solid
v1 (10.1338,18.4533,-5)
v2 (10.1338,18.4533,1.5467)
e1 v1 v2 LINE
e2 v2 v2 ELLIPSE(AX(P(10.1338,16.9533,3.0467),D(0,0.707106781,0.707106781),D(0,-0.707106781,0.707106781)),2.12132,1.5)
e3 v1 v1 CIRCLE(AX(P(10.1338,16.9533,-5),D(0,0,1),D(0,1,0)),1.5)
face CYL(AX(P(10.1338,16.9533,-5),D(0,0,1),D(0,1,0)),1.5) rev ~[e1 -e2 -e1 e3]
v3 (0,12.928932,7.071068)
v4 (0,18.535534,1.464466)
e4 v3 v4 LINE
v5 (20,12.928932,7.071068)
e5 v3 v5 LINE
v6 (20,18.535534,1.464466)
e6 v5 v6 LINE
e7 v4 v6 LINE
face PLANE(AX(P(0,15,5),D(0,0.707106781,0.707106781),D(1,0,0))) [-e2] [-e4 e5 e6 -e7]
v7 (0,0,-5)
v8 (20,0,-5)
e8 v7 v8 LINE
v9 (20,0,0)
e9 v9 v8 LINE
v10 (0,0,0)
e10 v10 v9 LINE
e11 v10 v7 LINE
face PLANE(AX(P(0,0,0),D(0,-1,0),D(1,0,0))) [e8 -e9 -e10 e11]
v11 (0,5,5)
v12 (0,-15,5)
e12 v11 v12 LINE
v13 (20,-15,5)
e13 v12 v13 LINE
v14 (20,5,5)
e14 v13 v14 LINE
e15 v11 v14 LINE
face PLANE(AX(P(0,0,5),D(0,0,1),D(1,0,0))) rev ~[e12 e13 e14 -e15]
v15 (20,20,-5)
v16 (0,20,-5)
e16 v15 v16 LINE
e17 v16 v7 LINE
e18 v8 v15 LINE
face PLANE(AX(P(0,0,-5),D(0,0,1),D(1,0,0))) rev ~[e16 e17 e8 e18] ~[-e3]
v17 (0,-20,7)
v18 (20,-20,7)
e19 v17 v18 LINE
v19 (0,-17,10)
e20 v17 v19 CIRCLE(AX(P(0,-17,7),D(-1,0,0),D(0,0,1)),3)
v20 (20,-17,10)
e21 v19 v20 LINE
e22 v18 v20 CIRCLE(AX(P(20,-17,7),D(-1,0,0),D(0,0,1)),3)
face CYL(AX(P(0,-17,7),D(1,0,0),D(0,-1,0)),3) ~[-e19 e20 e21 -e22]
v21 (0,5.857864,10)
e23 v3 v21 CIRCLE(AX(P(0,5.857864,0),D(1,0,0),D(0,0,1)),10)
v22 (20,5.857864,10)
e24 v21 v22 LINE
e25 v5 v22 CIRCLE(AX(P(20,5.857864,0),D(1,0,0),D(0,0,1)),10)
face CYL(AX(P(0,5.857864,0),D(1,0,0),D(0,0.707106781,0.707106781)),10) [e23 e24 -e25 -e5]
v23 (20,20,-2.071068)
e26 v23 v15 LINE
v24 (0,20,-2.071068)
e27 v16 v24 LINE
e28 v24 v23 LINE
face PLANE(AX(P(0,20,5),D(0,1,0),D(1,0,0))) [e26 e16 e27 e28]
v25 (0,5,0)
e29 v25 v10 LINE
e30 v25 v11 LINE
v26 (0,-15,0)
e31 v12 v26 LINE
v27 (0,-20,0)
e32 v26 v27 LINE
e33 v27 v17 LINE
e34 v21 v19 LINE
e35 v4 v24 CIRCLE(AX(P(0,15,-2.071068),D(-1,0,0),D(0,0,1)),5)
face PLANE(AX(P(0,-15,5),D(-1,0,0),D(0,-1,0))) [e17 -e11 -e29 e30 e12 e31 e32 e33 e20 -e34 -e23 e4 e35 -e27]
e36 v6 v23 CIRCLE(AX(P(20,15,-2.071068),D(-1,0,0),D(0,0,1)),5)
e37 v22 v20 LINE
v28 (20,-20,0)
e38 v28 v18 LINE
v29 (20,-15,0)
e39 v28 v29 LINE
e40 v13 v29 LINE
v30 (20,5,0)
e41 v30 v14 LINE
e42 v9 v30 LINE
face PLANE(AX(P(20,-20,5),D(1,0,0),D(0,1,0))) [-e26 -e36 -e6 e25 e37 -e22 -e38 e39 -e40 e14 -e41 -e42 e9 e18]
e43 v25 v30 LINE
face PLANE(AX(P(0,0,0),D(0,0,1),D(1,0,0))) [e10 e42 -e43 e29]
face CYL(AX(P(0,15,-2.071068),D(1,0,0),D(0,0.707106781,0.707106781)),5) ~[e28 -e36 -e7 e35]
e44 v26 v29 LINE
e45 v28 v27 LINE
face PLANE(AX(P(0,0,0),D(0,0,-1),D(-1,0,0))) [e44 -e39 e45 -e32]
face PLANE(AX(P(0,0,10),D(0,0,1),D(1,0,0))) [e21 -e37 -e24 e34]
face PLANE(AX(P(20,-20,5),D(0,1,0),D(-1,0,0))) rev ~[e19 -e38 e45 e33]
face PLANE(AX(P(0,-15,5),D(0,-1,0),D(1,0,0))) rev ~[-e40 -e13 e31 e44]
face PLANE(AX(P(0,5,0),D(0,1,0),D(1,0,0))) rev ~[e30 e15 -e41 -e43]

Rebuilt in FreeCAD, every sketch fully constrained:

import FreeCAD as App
import Part
import Sketcher
Q = App.Units.Quantity


def edges_at(feature, points):
    """Names of the edges that pass closest to the given points."""
    edges = feature.Shape.Edges
    near = lambda p: min(range(len(edges)), key=lambda i: edges[i].distToShape(Part.Vertex(*p))[0])
    return sorted({f"Edge{near(p) + 1}" for p in points})

doc = App.newDocument("Part")
body = doc.addObject("PartDesign::Body", "Body")

sketch1 = body.newObject("Sketcher::SketchObject", "Sketch")
sketch1.AttachmentSupport = (doc.getObject("XY_Plane"), [""])
sketch1.MapMode = "FlatFace"
sketch1.addGeometry([
    Part.LineSegment(App.Vector(0, 20, 0), App.Vector(0, 0, 0)),
    Part.LineSegment(App.Vector(0, 0, 0), App.Vector(20, 0, 0)),
    Part.LineSegment(App.Vector(20, 0, 0), App.Vector(20, 20, 0)),
    Part.LineSegment(App.Vector(20, 20, 0), App.Vector(0, 20, 0)),
], False)
sketch1.addConstraint([
    Sketcher.Constraint("Coincident", 0, 2, 1, 1),
    Sketcher.Constraint("Coincident", 1, 2, 2, 1),
    Sketcher.Constraint("Coincident", 2, 2, 3, 1),
    Sketcher.Constraint("Coincident", 3, 2, 0, 1),
    Sketcher.Constraint("Vertical", 0),
    Sketcher.Constraint("Horizontal", 1),
    Sketcher.Constraint("Vertical", 2),
    Sketcher.Constraint("Horizontal", 3),
    Sketcher.Constraint("Coincident", 0, 2, -1, 1),
    Sketcher.Constraint("Equal", 3, 0),
    Sketcher.Constraint("DistanceX", 1, 1, 1, 2, Q("20 mm")),
])
pad1 = body.newObject("PartDesign::Pad", "Pad")
pad1.Profile = sketch1
pad1.Length = 5
pad1.Reversed = True

sketch2 = body.newObject("Sketcher::SketchObject", "Sketch001")
sketch2.AttachmentSupport = (doc.getObject("XY_Plane"), [""])
sketch2.MapMode = "FlatFace"
sketch2.addGeometry([
    Part.LineSegment(App.Vector(0, 20, 0), App.Vector(0, 5, 0)),
    Part.LineSegment(App.Vector(0, 5, 0), App.Vector(20, 5, 0)),
    Part.LineSegment(App.Vector(20, 5, 0), App.Vector(20, 20, 0)),
    Part.LineSegment(App.Vector(20, 20, 0), App.Vector(0, 20, 0)),
], False)
sketch2.addConstraint([
    Sketcher.Constraint("Coincident", 0, 2, 1, 1),
    Sketcher.Constraint("Coincident", 1, 2, 2, 1),
    Sketcher.Constraint("Coincident", 2, 2, 3, 1),
    Sketcher.Constraint("Coincident", 3, 2, 0, 1),
    Sketcher.Constraint("Vertical", 0),
    Sketcher.Constraint("Horizontal", 1),
    Sketcher.Constraint("Vertical", 2),
    Sketcher.Constraint("Horizontal", 3),
    Sketcher.Constraint("PointOnObject", 0, 2, -2),
    Sketcher.Constraint("DistanceY", 0, 2, 0, 1, Q("15 mm")),
    Sketcher.Constraint("DistanceX", 1, 1, 1, 2, Q("20 mm")),
    Sketcher.Constraint("DistanceY", -1, 1, 0, 2, Q("5 mm")),
])
pad2 = body.newObject("PartDesign::Pad", "Pad001")
pad2.Profile = sketch2
pad2.Length = 5

sketch3 = body.newObject("Sketcher::SketchObject", "Sketch002")
sketch3.AttachmentSupport = (doc.getObject("XY_Plane"), [""])
sketch3.MapMode = "FlatFace"
sketch3.AttachmentOffset = App.Placement(App.Vector(0, 0, 5), App.Rotation())
sketch3.addGeometry([
    Part.LineSegment(App.Vector(20, 20, 0), App.Vector(0, 20, 0)),
    Part.LineSegment(App.Vector(0, 20, 0), App.Vector(0, -25, 0)),
    Part.LineSegment(App.Vector(0, -25, 0), App.Vector(20, -25, 0)),
    Part.LineSegment(App.Vector(20, -25, 0), App.Vector(20, 20, 0)),
], False)
sketch3.addConstraint([
    Sketcher.Constraint("Coincident", 0, 2, 1, 1),
    Sketcher.Constraint("Coincident", 1, 2, 2, 1),
    Sketcher.Constraint("Coincident", 2, 2, 3, 1),
    Sketcher.Constraint("Coincident", 3, 2, 0, 1),
    Sketcher.Constraint("Horizontal", 0),
    Sketcher.Constraint("Vertical", 1),
    Sketcher.Constraint("Horizontal", 2),
    Sketcher.Constraint("Vertical", 3),
    Sketcher.Constraint("PointOnObject", 0, 2, -2),
    Sketcher.Constraint("DistanceY", 1, 2, 1, 1, Q("45 mm")),
    Sketcher.Constraint("DistanceX", 0, 2, 0, 1, Q("20 mm")),
    Sketcher.Constraint("DistanceY", -1, 1, 0, 2, Q("20 mm")),
])
pad3 = body.newObject("PartDesign::Pad", "Pad002")
pad3.Profile = sketch3
pad3.Length = 5

sketch4 = body.newObject("Sketcher::SketchObject", "Sketch003")
sketch4.AttachmentSupport = (doc.getObject("XY_Plane"), [""])
sketch4.MapMode = "FlatFace"
sketch4.AttachmentOffset = App.Placement(App.Vector(0, 0, 10), App.Rotation())
sketch4.addGeometry([
    Part.LineSegment(App.Vector(0, -20, 0), App.Vector(0, -25, 0)),
    Part.LineSegment(App.Vector(0, -25, 0), App.Vector(20, -25, 0)),
    Part.LineSegment(App.Vector(20, -25, 0), App.Vector(20, -20, 0)),
    Part.LineSegment(App.Vector(20, -20, 0), App.Vector(0, -20, 0)),
], False)
sketch4.addConstraint([
    Sketcher.Constraint("Coincident", 0, 2, 1, 1),
    Sketcher.Constraint("Coincident", 1, 2, 2, 1),
    Sketcher.Constraint("Coincident", 2, 2, 3, 1),
    Sketcher.Constraint("Coincident", 3, 2, 0, 1),
    Sketcher.Constraint("Vertical", 0),
    Sketcher.Constraint("Horizontal", 1),
    Sketcher.Constraint("Vertical", 2),
    Sketcher.Constraint("Horizontal", 3),
    Sketcher.Constraint("PointOnObject", 0, 2, -2),
    Sketcher.Constraint("DistanceY", 0, 2, 0, 1, Q("5 mm")),
    Sketcher.Constraint("DistanceX", 1, 1, 1, 2, Q("20 mm")),
    Sketcher.Constraint("DistanceY", 0, 2, -1, 1, Q("25 mm")),
])
pocket1 = body.newObject("PartDesign::Pocket", "Pocket")
pocket1.Profile = sketch4
pocket1.Length = 10

sketch5 = body.newObject("Sketcher::SketchObject", "Sketch004")
sketch5.AttachmentSupport = (doc.getObject("XY_Plane"), [""])
sketch5.MapMode = "FlatFace"
sketch5.AttachmentOffset = App.Placement(App.Vector(0, 0, 5), App.Rotation())
sketch5.addGeometry([
    Part.LineSegment(App.Vector(0, -20, 0), App.Vector(0, -15, 0)),
    Part.LineSegment(App.Vector(0, -15, 0), App.Vector(20, -15, 0)),
    Part.LineSegment(App.Vector(20, -15, 0), App.Vector(20, -20, 0)),
    Part.LineSegment(App.Vector(20, -20, 0), App.Vector(0, -20, 0)),
], False)
sketch5.addConstraint([
    Sketcher.Constraint("Coincident", 0, 2, 1, 1),
    Sketcher.Constraint("Coincident", 1, 2, 2, 1),
    Sketcher.Constraint("Coincident", 2, 2, 3, 1),
    Sketcher.Constraint("Coincident", 3, 2, 0, 1),
    Sketcher.Constraint("Vertical", 0),
    Sketcher.Constraint("Horizontal", 1),
    Sketcher.Constraint("Vertical", 2),
    Sketcher.Constraint("Horizontal", 3),
    Sketcher.Constraint("PointOnObject", 0, 2, -2),
    Sketcher.Constraint("DistanceX", 1, 1, 1, 2, Q("20 mm")),
    Sketcher.Constraint("DistanceY", 0, 1, 0, 2, Q("5 mm")),
    Sketcher.Constraint("DistanceY", 0, 2, -1, 1, Q("15 mm")),
])
pad4 = body.newObject("PartDesign::Pad", "Pad003")
pad4.Profile = sketch5
pad4.Length = 5
pad4.Reversed = True
doc.recompute()

fillet = body.newObject("PartDesign::Fillet", "Fillet")
fillet.Base = (pad4, edges_at(pad4, [(10, -20, 10)]))
fillet.Radius = 3
doc.recompute()

chamfer = body.newObject("PartDesign::Chamfer", "Chamfer")
chamfer.Base = (fillet, edges_at(fillet, [(10, 20, 10)]))
chamfer.Size = 10
doc.recompute()

fillet2 = body.newObject("PartDesign::Fillet", "Fillet001")
fillet2.Base = (chamfer, edges_at(chamfer, [(10, 20, 0)]))
fillet2.Radius = 5
doc.recompute()

fillet3 = body.newObject("PartDesign::Fillet", "Fillet002")
fillet3.Base = (fillet2, edges_at(fillet2, [(10, 10, 10)]))
fillet3.Radius = 10

sketch6 = body.newObject("Sketcher::SketchObject", "Sketch005")
sketch6.AttachmentSupport = (doc.getObject("XY_Plane"), [""])
sketch6.MapMode = "FlatFace"
sketch6.AttachmentOffset = App.Placement(App.Vector(0, 0, -5), App.Rotation())
sketch6.addGeometry(Part.Circle(App.Vector(10.1, 17, 0), App.Vector(0, 0, 1), 1.5), False)
sketch6.addConstraint([
    Sketcher.Constraint("Diameter", 0, Q("3 mm")),
    Sketcher.Constraint("DistanceX", -1, 1, 0, 3, Q("10.1338 mm")),
    Sketcher.Constraint("DistanceY", -1, 1, 0, 3, Q("16.9533 mm")),
])
doc.recompute()
hole = body.newObject("PartDesign::Hole", "Hole")
hole.Profile = sketch6
hole.ThreadType = "None"
hole.Diameter = 3
hole.DepthType = "ThroughAll"
hole.Reversed = True

doc.recompute()
